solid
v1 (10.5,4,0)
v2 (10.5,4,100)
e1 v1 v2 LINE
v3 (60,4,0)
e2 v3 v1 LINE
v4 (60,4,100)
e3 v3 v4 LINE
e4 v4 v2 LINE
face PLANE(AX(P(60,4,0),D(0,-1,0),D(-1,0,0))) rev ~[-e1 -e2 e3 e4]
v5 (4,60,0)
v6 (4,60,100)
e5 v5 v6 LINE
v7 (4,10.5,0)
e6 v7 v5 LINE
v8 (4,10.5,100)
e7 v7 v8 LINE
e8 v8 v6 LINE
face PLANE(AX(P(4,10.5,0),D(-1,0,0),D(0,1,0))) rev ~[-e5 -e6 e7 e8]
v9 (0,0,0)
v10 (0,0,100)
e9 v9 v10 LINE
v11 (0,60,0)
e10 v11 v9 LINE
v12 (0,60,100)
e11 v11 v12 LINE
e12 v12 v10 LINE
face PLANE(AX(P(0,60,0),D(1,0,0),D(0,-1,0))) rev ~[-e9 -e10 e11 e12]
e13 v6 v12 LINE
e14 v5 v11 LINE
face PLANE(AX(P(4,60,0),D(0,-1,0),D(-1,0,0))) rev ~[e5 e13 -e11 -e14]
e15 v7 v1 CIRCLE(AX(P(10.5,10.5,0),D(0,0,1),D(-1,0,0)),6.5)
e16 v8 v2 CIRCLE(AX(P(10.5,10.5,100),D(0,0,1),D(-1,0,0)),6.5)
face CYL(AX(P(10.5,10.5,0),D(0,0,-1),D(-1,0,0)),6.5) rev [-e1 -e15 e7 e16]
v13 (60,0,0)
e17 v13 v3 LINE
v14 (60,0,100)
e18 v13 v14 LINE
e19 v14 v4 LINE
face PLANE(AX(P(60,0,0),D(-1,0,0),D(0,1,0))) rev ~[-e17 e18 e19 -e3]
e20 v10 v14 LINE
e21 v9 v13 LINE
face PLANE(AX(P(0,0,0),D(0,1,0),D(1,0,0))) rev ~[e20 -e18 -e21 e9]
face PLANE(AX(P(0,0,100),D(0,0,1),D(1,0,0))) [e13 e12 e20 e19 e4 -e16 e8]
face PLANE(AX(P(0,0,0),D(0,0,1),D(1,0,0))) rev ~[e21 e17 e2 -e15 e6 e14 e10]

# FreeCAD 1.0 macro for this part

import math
import FreeCAD as App
import Part
import Sketcher
from FreeCAD import Vector
Q = App.Units.Quantity

doc = App.newDocument("Part")
body = doc.addObject("PartDesign::Body", "Body")

sketch1 = body.newObject("Sketcher::SketchObject", "Sketch")
sketch1.AttachmentSupport = (doc.getObject("XY_Plane"), [""])
sketch1.MapMode = "FlatFace"
sketch1.addGeometry([
    Part.LineSegment(Vector(4, 60, 0), Vector(0, 60, 0)),
    Part.LineSegment(Vector(0, 60, 0), Vector(0, 0, 0)),
    Part.LineSegment(Vector(0, 0, 0), Vector(60, 0, 0)),
    Part.LineSegment(Vector(60, 0, 0), Vector(60, 4, 0)),
    Part.LineSegment(Vector(60, 4, 0), Vector(10.5, 4, 0)),
    Part.ArcOfCircle(Part.Circle(Vector(10.5, 10.5, 0), Vector(0, 0, 1), 6.5), math.radians(180), math.radians(270)),
    Part.LineSegment(Vector(4, 10.5, 0), Vector(4, 60, 0)),
], False)
sketch1.addConstraint([
    Sketcher.Constraint("Coincident", 0, 2, 1, 1),
    Sketcher.Constraint("Coincident", 1, 2, 2, 1),
    Sketcher.Constraint("Coincident", 2, 2, 3, 1),
    Sketcher.Constraint("Coincident", 3, 2, 4, 1),
    Sketcher.Constraint("Tangent", 4, 2, 5, 2),
    Sketcher.Constraint("Tangent", 5, 1, 6, 1),
    Sketcher.Constraint("Coincident", 6, 2, 0, 1),
    Sketcher.Constraint("Horizontal", 0),
    Sketcher.Constraint("Vertical", 1),
    Sketcher.Constraint("Horizontal", 2),
    Sketcher.Constraint("Vertical", 3),
    Sketcher.Constraint("Horizontal", 4),
    Sketcher.Constraint("Vertical", 6),
    Sketcher.Constraint("Coincident", 1, 2, -1, 1),
    Sketcher.Constraint("Equal", 2, 1),
    Sketcher.Constraint("Equal", 0, 3),
    Sketcher.Constraint("Radius", 5, Q("6.5 mm")),
    Sketcher.Constraint("DistanceX", 0, 2, 0, 1, Q("4 mm")),
    Sketcher.Constraint("DistanceX", 2, 1, 2, 2, Q("60 mm")),
])
pad1 = body.newObject("PartDesign::Pad", "Pad")
pad1.Profile = sketch1
pad1.Length = 100

doc.recompute()
